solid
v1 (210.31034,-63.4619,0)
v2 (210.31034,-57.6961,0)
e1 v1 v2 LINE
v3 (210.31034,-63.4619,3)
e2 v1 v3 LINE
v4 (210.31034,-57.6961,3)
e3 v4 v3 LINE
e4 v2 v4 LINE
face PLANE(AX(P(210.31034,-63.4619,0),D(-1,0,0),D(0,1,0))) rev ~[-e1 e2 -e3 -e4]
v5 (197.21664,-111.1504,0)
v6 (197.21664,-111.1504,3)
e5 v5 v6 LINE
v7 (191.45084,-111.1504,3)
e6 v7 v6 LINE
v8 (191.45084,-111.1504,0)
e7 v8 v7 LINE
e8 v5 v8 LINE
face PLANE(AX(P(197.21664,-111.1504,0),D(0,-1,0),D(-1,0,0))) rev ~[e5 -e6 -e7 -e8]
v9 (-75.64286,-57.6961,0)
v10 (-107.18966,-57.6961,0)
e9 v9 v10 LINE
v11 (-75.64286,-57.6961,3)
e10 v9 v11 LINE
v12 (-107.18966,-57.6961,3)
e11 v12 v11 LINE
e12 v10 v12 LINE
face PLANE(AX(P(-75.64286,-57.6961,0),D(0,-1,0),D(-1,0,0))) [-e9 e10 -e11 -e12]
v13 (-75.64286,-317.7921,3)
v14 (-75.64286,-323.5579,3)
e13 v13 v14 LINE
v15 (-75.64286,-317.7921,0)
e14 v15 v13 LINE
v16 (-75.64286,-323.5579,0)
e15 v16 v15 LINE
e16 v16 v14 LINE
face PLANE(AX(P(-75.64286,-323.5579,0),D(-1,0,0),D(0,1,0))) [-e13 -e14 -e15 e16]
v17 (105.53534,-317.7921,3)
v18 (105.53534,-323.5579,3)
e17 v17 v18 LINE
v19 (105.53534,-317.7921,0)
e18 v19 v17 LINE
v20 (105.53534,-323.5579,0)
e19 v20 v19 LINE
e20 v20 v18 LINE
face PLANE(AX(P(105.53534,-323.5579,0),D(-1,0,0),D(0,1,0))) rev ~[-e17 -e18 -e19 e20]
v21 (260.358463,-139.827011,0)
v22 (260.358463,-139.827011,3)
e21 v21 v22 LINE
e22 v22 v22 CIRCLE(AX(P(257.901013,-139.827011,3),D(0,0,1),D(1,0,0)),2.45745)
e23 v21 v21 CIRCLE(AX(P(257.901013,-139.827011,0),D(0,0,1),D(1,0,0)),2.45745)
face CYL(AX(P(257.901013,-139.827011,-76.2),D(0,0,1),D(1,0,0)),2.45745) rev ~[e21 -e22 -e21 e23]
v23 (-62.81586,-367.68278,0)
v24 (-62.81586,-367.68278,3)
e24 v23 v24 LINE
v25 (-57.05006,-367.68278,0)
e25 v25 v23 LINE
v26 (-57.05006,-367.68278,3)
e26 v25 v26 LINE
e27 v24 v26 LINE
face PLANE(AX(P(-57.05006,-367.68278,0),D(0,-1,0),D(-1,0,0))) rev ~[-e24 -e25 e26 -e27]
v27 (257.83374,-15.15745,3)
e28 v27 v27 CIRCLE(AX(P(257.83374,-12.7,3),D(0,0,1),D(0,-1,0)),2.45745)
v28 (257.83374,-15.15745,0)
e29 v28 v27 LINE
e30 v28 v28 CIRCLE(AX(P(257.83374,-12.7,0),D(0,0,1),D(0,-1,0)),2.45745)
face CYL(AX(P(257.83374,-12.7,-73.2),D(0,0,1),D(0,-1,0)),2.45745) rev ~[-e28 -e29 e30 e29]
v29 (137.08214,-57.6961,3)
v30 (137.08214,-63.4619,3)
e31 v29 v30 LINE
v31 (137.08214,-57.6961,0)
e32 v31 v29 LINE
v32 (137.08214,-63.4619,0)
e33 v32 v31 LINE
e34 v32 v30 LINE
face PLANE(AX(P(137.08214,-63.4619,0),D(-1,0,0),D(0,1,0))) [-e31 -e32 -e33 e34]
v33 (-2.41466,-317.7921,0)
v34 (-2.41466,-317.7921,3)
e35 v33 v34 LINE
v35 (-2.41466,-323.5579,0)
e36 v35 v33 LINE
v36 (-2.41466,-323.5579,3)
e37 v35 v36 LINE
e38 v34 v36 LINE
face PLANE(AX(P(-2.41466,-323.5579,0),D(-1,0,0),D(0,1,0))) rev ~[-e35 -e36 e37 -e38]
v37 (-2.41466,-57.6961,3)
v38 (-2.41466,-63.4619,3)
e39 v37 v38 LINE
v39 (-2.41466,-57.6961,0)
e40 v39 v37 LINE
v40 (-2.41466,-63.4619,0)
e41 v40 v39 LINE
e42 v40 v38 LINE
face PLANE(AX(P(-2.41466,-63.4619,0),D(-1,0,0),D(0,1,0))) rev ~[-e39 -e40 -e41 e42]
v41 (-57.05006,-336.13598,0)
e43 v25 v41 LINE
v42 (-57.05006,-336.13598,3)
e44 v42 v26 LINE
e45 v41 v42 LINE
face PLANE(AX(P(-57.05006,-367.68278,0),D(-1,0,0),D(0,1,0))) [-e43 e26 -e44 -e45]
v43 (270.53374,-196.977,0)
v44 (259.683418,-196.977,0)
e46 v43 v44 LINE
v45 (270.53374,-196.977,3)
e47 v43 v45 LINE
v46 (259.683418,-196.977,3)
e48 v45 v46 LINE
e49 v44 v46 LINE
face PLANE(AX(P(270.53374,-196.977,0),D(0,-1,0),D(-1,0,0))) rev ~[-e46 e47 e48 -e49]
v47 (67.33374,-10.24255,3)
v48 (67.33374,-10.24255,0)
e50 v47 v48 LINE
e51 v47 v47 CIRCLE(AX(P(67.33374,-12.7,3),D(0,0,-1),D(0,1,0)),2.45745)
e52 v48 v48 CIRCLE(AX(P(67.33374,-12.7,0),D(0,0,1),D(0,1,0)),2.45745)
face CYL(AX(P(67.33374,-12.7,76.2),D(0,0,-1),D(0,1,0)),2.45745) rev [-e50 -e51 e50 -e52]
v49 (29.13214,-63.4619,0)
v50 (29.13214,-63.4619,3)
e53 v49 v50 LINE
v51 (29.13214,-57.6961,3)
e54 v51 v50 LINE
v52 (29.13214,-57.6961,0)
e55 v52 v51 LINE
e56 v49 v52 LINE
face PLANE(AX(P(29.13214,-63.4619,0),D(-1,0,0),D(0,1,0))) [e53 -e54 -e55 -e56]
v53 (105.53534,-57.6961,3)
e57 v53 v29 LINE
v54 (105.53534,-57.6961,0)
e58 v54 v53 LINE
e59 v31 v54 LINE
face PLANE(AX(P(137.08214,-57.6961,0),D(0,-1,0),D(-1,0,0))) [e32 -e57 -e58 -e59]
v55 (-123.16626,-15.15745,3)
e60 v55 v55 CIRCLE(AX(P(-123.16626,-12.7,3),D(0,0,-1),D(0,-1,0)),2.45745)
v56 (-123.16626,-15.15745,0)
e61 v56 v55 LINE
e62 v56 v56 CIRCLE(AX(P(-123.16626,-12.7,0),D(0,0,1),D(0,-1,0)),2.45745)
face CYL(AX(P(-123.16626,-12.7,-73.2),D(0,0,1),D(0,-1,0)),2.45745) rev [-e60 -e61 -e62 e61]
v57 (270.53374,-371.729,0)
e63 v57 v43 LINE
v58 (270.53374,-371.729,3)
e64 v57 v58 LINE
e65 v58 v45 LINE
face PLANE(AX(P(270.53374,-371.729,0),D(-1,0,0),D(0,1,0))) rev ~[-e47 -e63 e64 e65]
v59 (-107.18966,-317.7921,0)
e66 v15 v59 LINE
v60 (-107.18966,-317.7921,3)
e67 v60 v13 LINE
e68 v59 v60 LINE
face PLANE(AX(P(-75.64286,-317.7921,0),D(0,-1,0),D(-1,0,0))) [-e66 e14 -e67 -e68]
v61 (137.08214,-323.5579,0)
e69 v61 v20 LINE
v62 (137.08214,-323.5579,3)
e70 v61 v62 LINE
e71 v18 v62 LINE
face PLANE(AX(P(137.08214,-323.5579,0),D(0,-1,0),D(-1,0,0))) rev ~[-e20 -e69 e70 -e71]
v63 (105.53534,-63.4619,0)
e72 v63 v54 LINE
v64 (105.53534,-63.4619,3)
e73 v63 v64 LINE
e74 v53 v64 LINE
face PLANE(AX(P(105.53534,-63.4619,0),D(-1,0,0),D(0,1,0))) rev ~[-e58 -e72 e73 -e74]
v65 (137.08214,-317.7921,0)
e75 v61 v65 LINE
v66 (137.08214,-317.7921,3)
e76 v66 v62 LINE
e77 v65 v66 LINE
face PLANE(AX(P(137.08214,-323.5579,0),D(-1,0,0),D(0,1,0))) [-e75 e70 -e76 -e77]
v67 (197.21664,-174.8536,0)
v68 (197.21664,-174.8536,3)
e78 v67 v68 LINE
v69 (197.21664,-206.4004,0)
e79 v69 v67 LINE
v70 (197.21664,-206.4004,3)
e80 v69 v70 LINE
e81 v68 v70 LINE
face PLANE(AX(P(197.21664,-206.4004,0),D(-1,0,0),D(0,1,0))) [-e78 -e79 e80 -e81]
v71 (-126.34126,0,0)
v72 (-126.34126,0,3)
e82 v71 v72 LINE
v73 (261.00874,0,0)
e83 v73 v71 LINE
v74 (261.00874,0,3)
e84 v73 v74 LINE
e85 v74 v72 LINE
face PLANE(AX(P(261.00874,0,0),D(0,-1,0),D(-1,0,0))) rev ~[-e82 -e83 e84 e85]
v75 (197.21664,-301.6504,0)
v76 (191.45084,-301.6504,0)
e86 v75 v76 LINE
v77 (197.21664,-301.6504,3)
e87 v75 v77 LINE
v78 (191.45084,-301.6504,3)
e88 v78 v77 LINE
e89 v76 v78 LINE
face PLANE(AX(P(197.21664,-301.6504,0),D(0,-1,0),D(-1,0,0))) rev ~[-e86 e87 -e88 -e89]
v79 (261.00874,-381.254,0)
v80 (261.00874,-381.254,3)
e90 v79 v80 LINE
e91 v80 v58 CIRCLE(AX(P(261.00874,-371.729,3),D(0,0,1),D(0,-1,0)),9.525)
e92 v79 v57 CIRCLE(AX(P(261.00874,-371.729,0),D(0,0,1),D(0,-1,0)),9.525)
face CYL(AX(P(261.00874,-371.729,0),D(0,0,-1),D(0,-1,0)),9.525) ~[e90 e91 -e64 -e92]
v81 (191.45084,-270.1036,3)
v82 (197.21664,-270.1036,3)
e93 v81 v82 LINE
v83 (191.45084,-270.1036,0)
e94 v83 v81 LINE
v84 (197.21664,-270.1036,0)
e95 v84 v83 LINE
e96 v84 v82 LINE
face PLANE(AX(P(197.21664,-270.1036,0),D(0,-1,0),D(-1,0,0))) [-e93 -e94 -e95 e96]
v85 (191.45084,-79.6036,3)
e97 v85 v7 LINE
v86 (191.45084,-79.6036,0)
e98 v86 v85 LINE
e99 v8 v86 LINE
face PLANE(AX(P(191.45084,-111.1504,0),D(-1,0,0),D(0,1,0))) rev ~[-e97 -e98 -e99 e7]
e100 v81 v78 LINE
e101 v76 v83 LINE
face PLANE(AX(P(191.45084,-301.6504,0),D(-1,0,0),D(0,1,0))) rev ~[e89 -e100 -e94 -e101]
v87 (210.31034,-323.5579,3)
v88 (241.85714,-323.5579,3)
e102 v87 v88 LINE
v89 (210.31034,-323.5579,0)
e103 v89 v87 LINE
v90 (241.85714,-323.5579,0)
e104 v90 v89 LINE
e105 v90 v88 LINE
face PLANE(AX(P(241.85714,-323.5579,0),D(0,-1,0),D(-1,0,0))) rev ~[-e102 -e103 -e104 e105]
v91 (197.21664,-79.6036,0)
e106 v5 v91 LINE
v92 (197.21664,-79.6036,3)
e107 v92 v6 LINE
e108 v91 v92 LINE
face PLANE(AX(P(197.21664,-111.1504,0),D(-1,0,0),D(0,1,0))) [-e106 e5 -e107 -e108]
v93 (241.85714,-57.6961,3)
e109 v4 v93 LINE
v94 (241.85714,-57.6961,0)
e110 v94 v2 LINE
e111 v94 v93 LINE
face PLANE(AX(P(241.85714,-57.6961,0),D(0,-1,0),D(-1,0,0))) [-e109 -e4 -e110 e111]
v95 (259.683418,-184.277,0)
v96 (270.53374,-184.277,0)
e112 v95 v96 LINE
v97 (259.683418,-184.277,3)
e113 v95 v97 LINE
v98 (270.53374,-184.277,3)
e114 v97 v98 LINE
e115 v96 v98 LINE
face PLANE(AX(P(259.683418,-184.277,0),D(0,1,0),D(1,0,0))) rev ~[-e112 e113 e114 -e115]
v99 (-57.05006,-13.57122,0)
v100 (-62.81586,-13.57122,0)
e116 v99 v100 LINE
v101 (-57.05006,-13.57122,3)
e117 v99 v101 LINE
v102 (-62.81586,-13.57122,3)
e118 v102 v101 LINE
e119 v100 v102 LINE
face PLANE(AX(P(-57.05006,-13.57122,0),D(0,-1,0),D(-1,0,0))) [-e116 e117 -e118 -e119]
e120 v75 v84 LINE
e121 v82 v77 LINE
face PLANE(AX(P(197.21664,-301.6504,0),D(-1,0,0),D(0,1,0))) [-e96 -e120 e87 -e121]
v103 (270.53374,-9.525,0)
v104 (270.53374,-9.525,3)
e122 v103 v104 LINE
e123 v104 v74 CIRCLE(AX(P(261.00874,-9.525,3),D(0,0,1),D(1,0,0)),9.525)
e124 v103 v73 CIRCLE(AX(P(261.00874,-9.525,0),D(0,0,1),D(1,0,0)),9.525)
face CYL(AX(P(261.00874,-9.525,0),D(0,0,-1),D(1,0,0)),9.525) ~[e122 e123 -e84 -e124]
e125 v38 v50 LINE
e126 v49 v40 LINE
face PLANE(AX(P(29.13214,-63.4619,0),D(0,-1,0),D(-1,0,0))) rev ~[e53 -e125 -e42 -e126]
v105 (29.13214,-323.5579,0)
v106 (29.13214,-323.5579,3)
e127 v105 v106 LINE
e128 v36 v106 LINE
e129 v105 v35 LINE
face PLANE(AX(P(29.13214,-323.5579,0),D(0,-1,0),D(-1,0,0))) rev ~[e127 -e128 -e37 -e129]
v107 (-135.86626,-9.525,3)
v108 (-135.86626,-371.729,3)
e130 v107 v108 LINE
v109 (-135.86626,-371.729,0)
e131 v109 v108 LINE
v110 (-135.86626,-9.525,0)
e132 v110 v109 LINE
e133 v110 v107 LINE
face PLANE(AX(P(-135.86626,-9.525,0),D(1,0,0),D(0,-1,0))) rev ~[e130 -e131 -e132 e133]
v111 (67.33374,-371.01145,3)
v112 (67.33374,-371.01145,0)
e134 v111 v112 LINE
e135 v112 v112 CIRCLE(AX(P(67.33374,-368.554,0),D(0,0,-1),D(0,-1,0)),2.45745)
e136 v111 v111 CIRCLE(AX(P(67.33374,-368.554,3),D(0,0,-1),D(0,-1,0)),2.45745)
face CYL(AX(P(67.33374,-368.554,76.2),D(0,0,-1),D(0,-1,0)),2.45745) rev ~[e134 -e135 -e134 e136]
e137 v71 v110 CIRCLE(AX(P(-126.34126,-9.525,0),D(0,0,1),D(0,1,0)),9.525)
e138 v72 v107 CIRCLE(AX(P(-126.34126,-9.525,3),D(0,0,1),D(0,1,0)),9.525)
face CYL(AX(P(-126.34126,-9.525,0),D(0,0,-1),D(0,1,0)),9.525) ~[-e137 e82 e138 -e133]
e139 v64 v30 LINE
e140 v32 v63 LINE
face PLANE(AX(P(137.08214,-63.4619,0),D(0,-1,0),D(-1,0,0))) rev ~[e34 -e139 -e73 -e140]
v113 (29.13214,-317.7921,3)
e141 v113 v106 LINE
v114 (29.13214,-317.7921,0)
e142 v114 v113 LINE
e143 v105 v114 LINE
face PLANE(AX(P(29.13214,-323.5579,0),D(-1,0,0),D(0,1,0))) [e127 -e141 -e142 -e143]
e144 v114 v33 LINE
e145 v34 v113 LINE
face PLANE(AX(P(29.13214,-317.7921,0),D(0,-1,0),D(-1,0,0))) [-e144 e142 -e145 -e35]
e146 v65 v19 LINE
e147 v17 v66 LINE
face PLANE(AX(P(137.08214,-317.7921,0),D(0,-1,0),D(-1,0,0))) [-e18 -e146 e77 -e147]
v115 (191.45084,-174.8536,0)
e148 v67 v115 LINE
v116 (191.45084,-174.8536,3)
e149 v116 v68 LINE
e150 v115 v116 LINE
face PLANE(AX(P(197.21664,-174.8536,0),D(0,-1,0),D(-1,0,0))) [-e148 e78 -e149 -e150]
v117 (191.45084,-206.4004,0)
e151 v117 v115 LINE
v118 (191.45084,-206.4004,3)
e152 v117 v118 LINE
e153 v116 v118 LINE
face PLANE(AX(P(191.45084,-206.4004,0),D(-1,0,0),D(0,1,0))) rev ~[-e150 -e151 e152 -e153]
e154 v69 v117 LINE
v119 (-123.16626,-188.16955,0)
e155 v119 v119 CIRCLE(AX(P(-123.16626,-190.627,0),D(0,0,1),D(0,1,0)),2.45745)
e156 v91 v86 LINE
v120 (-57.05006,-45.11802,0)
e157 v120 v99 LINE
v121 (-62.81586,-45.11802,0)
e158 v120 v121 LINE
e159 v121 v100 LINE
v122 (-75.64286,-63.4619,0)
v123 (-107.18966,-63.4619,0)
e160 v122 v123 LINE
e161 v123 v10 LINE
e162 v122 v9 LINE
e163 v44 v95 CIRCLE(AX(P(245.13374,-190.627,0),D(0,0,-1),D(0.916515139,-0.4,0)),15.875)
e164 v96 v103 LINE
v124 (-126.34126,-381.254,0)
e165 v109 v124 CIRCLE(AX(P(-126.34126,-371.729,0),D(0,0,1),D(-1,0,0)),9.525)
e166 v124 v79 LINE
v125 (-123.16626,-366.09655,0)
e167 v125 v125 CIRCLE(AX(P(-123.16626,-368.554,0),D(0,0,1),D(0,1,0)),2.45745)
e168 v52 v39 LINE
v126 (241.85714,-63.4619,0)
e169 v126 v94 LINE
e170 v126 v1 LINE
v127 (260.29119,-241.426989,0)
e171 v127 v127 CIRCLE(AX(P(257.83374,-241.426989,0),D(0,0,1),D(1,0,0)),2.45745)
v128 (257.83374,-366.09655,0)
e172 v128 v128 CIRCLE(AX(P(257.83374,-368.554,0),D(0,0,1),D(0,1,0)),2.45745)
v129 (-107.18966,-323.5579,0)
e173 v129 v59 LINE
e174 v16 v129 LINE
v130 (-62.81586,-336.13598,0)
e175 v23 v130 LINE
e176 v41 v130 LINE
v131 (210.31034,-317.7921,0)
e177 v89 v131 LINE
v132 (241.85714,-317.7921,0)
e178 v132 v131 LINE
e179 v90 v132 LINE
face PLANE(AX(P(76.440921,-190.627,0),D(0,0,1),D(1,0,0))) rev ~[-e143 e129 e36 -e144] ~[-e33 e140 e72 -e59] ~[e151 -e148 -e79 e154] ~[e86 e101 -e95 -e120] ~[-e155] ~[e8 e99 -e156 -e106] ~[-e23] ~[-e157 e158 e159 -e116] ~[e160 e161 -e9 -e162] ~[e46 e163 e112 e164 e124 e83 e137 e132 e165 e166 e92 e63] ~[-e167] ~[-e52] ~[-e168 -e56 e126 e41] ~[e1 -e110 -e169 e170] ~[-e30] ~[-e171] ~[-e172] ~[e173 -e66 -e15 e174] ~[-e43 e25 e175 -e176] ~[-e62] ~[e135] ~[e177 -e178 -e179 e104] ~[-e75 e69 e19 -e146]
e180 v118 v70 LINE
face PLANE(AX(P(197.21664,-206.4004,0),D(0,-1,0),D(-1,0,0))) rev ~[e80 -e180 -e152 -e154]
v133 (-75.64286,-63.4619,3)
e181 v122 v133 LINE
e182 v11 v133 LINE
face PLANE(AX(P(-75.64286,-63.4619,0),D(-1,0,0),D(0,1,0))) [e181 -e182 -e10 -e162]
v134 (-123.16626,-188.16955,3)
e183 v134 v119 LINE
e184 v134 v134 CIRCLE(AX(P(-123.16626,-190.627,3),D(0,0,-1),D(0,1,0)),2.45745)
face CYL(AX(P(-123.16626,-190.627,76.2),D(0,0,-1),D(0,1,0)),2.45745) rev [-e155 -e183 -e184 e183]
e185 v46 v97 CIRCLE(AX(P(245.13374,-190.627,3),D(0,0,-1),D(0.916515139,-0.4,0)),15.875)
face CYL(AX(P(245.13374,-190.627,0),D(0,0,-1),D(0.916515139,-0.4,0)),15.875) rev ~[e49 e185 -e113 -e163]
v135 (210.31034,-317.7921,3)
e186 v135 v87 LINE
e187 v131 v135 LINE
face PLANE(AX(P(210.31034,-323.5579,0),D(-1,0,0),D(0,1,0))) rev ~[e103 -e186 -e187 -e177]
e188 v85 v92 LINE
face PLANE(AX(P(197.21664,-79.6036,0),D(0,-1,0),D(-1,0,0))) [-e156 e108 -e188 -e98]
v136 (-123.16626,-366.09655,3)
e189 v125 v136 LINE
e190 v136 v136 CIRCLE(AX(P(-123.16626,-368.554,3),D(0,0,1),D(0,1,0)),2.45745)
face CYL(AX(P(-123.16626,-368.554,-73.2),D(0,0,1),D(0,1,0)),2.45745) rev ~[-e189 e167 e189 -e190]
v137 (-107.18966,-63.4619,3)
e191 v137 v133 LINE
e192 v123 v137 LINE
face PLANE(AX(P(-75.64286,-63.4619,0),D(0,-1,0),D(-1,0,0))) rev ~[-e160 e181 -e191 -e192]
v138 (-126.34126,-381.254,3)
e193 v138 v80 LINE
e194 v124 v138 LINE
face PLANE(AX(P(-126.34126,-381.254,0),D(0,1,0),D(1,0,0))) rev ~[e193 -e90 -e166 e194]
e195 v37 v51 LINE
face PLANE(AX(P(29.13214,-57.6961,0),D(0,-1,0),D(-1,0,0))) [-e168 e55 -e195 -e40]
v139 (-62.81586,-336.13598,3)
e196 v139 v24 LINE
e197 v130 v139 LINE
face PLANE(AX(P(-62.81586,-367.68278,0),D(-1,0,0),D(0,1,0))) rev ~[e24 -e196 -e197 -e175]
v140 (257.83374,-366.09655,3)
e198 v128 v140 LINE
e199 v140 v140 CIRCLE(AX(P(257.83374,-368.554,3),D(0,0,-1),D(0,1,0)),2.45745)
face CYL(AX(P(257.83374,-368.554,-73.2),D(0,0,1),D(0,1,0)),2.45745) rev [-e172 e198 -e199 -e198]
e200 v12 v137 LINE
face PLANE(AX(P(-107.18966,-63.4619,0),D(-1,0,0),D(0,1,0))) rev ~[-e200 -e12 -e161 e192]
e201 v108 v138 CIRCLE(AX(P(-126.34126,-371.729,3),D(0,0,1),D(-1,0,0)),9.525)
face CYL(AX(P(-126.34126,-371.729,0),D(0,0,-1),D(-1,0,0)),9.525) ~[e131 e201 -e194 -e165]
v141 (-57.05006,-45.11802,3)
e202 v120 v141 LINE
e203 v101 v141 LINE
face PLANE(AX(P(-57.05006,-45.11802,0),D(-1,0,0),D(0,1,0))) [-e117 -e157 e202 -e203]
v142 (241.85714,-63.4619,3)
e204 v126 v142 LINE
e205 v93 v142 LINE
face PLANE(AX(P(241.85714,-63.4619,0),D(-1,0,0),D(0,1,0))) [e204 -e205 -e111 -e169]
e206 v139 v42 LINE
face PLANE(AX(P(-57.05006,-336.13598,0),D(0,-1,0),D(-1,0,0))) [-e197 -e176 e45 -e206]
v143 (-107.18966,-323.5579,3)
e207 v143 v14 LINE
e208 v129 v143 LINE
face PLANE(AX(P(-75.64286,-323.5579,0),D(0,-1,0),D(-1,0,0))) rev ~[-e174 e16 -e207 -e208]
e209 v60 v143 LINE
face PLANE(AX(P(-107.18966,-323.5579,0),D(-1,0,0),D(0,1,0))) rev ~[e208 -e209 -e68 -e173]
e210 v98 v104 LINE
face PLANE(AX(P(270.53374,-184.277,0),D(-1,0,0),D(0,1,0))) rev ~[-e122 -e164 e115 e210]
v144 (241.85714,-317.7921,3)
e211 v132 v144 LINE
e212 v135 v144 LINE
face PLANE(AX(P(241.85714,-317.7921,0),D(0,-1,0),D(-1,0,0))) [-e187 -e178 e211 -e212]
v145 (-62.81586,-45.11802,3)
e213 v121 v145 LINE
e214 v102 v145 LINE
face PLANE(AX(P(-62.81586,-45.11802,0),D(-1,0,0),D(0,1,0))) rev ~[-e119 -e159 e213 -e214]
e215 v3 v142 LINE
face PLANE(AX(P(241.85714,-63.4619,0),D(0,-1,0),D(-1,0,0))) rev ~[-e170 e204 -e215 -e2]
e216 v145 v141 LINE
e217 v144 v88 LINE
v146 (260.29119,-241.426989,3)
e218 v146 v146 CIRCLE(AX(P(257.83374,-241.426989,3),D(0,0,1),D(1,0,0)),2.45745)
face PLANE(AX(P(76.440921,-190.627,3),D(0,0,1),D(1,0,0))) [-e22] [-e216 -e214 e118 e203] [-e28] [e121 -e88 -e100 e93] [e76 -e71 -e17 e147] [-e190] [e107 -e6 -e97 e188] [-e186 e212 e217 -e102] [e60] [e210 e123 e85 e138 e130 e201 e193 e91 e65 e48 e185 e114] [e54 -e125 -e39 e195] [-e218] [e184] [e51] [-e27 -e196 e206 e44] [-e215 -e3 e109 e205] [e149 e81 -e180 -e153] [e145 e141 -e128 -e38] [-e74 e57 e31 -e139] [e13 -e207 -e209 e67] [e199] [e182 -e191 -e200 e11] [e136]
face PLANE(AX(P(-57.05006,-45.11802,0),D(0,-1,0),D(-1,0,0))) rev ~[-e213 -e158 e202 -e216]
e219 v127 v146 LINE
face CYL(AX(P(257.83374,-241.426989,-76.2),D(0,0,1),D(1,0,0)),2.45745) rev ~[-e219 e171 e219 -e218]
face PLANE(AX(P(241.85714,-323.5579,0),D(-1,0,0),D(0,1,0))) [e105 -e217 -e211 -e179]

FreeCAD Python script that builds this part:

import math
import FreeCAD as App
import Part
import Sketcher

V = App.Vector
Q = App.Units.Quantity

doc = App.newDocument("Part")
params = doc.addObject("Spreadsheet::Sheet", "Params")
for row, (alias, value) in enumerate([
    ("sketch1_radius", "0.375 in"),
    ("sketch1_radius2", "0.625 in"),
    ("sketch1_width", "15.25 in"),
    ("sketch1_height", "6.88 in"),
    ("sketch1_height2", "14.26 in"),
    ("pad1_length", "3 mm"),
    ("sketch2_height", "3 in"),
    ("groove_angle", "360 deg"),
    ("sketch3_height", "3 in"),
    ("groove2_angle", "360 deg"),
    ("linearpattern_pitch", "260.668884 mm"),
    ("sketch4_height", "3 in"),
    ("groove3_angle", "360 deg"),
    ("sketch5_height", "3 in"),
    ("groove4_angle", "360 deg"),
    ("hole_diameter", "0.1935 in"),
    ("hole_depth", "3 in"),
    ("sketch7_width", "1.242 in"),
    ("sketch7_width2", "0.227 in"),
], start=1):
    params.set(f"A{row}", alias)
    params.set(f"B{row}", "=" + value)
    params.setAlias(f"B{row}", alias)

body = doc.addObject("PartDesign::Body", "Body")

# Sketch on XY plane
sketch1 = body.newObject("Sketcher::SketchObject", "Sketch")
sketch1.AttachmentSupport = (doc.getObject("XY_Plane"), [""])
sketch1.MapMode = "FlatFace"
sketch1.addGeometry([
    Part.ArcOfCircle(Part.Circle(V(-126, -372, 0), V(0, 0, 1), 10), math.radians(180), math.radians(270)),  # 0
    Part.LineSegment(V(-126, -381, 0), V(261, -381, 0)),  # 1
    Part.ArcOfCircle(Part.Circle(V(261, -372, 0), V(0, 0, 1), 10), math.radians(-90), math.radians(0)),  # 2
    Part.LineSegment(V(271, -372, 0), V(271, -197, 0)),  # 3
    Part.LineSegment(V(271, -197, 0), V(260, -197, 0)),  # 4
    Part.ArcOfCircle(Part.Circle(V(245, -191, 0), V(0, 0, 1), 16), math.radians(24), math.radians(336)),  # 5
    Part.LineSegment(V(260, -184, 0), V(271, -184, 0)),  # 6
    Part.LineSegment(V(271, -184, 0), V(271, -10, 0)),  # 7
    Part.ArcOfCircle(Part.Circle(V(261, -10, 0), V(0, 0, 1), 10), math.radians(0), math.radians(90)),  # 8
    Part.LineSegment(V(261, 0, 0), V(-126, 0, 0)),  # 9
    Part.ArcOfCircle(Part.Circle(V(-126, -10, 0), V(0, 0, 1), 10), math.radians(90), math.radians(180)),  # 10
    Part.LineSegment(V(-136, -10, 0), V(-136, -372, 0)),  # 11
], False)
sketch1.addConstraint([
    Sketcher.Constraint("Tangent", 0, 2, 1, 1),
    Sketcher.Constraint("Tangent", 1, 2, 2, 1),
    Sketcher.Constraint("Tangent", 2, 2, 3, 1),
    Sketcher.Constraint("Coincident", 3, 2, 4, 1),
    Sketcher.Constraint("Coincident", 4, 2, 5, 2),
    Sketcher.Constraint("Coincident", 5, 1, 6, 1),
    Sketcher.Constraint("Coincident", 6, 2, 7, 1),
    Sketcher.Constraint("Tangent", 7, 2, 8, 1),
    Sketcher.Constraint("Tangent", 8, 2, 9, 1),
    Sketcher.Constraint("Tangent", 9, 2, 10, 1),
    Sketcher.Constraint("Tangent", 10, 2, 11, 1),
    Sketcher.Constraint("Tangent", 11, 2, 0, 1),
    Sketcher.Constraint("Horizontal", 1),
    Sketcher.Constraint("Vertical", 3),
    Sketcher.Constraint("Horizontal", 4),
    Sketcher.Constraint("Horizontal", 6),
    Sketcher.Constraint("Vertical", 7),
    Sketcher.Constraint("Horizontal", 9),
    Sketcher.Constraint("Vertical", 11),
    Sketcher.Constraint("Equal", 0, 2),
    Sketcher.Constraint("Equal", 2, 8),
    Sketcher.Constraint("Equal", 8, 10),
    Sketcher.Constraint("PointOnObject", 8, 2, -1),
    Sketcher.Constraint("Vertical", 2, 3, 8, 3),
    Sketcher.Constraint("Vertical", 4, 2, 5, 1),
    Sketcher.Constraint("Equal", 3, 7),
    Sketcher.Constraint("Radius", 0, Q("0.375 in")),
    Sketcher.Constraint("Radius", 5, Q("0.625 in")),
    Sketcher.Constraint("DistanceX", 5, 3, 2, 2, Q("1 in")),
    Sketcher.Constraint("DistanceX", 1, 1, 1, 2, Q("15.25 in")),
    Sketcher.Constraint("DistanceY", 3, 1, 3, 2, Q("6.88 in")),
    Sketcher.Constraint("DistanceY", 11, 2, 11, 1, Q("14.26 in")),
    Sketcher.Constraint("DistanceX", 0, 3, -1, 1, Q("126.34126 mm")),
])
sketch1.setExpression("Constraints[26]", "Params.sketch1_radius")
sketch1.setExpression("Constraints[27]", "Params.sketch1_radius2")
sketch1.setExpression("Constraints[29]", "Params.sketch1_width")
sketch1.setExpression("Constraints[30]", "Params.sketch1_height")
sketch1.setExpression("Constraints[31]", "Params.sketch1_height2")
pad1 = body.newObject("PartDesign::Pad", "Pad")
pad1.Profile = sketch1
pad1.setExpression("Length", "Params.pad1_length")

# Sketch on YZ plane
sketch2 = body.newObject("Sketcher::SketchObject", "Sketch001")
sketch2.AttachmentSupport = (doc.getObject("YZ_Plane"), [""])
sketch2.MapMode = "FlatFace"
sketch2.AttachmentOffset = App.Placement(V(0, 0, -123.16626), App.Rotation())
sketch2.addGeometry([
    Part.LineSegment(V(-12.7, -74.7, 0), V(-12.7, 3, 0)),
    Part.LineSegment(V(-12.7, 3, 0), V(-15.2, 3, 0)),
    Part.LineSegment(V(-15.2, 3, 0), V(-15.2, -73.2, 0)),
    Part.LineSegment(V(-15.2, -73.2, 0), V(-12.7, -74.7, 0)),
], False)
sketch2.addGeometry(Part.LineSegment(V(-12.7, 3, 0), V(-12.7, -74.7, 0)), True)  # axis
sketch2.addConstraint([
    Sketcher.Constraint("Coincident", 0, 2, 1, 1),
    Sketcher.Constraint("Coincident", 1, 2, 2, 1),
    Sketcher.Constraint("Coincident", 2, 2, 3, 1),
    Sketcher.Constraint("Coincident", 3, 2, 0, 1),
    Sketcher.Constraint("Vertical", 0),
    Sketcher.Constraint("Horizontal", 1),
    Sketcher.Constraint("Vertical", 2),
    Sketcher.Constraint("Vertical", 4),
    Sketcher.Constraint("Coincident", 4, 1, 0, 2),
    Sketcher.Constraint("Equal", 0, 4),
    Sketcher.Constraint("DistanceY", 2, 2, 2, 1, Q("3 in")),
    Sketcher.Constraint("Angle", 3, Q("-31 deg")),
    Sketcher.Constraint("DistanceX", 0, 2, -1, 1, Q("0.5 in")),
    Sketcher.Constraint("DistanceX", 1, 2, 1, 1, Q("2.45745 mm")),
    Sketcher.Constraint("DistanceY", -1, 1, 0, 2, Q("3 mm")),
])
sketch2.setExpression("Constraints[10]", "Params.sketch2_height")
groove = body.newObject("PartDesign::Groove", "Groove")
groove.Profile = sketch2
groove.ReferenceAxis = (sketch2, ["Axis0"])
groove.setExpression("Angle", "Params.groove_angle")

# Sketch on YZ plane
sketch3 = body.newObject("Sketcher::SketchObject", "Sketch002")
sketch3.AttachmentSupport = (doc.getObject("YZ_Plane"), [""])
sketch3.MapMode = "FlatFace"
sketch3.AttachmentOffset = App.Placement(V(0, 0, 67.33374), App.Rotation())
sketch3.addGeometry([
    Part.LineSegment(V(-12.7, 77.7, 0), V(-12.7, 0, 0)),
    Part.LineSegment(V(-12.7, 0, 0), V(-10.2, 0, 0)),
    Part.LineSegment(V(-10.2, 0, 0), V(-10.2, 76.2, 0)),
    Part.LineSegment(V(-10.2, 76.2, 0), V(-12.7, 77.7, 0)),
], False)
sketch3.addGeometry(Part.LineSegment(V(-12.7, 0, 0), V(-12.7, 77.7, 0)), True)  # axis
sketch3.addConstraint([
    Sketcher.Constraint("Coincident", 0, 2, 1, 1),
    Sketcher.Constraint("Coincident", 1, 2, 2, 1),
    Sketcher.Constraint("Coincident", 2, 2, 3, 1),
    Sketcher.Constraint("Coincident", 3, 2, 0, 1),
    Sketcher.Constraint("Vertical", 0),
    Sketcher.Constraint("Horizontal", 1),
    Sketcher.Constraint("Vertical", 2),
    Sketcher.Constraint("Vertical", 4),
    Sketcher.Constraint("Coincident", 4, 1, 0, 2),
    Sketcher.Constraint("PointOnObject", 0, 2, -1),
    Sketcher.Constraint("Equal", 0, 4),
    Sketcher.Constraint("DistanceY", 2, 1, 2, 2, Q("3 in")),
    Sketcher.Constraint("Angle", 3, Q("149 deg")),
    Sketcher.Constraint("DistanceX", 0, 2, -1, 1, Q("0.5 in")),
    Sketcher.Constraint("DistanceX", 1, 1, 1, 2, Q("2.45745 mm")),
])
sketch3.setExpression("Constraints[11]", "Params.sketch3_height")
groove2 = body.newObject("PartDesign::Groove", "Groove001")
groove2.Profile = sketch3
groove2.ReferenceAxis = (sketch3, ["Axis0"])
groove2.setExpression("Angle", "Params.groove2_angle")
doc.recompute()

datumline = body.newObject("PartDesign::Line", "DatumLine")
datumline.Placement = App.Placement(V(0, 0, 0), App.Rotation(V(0, 0, 1), V(-0.730812196, -0.682578591, 0)))
linearpattern = body.newObject("PartDesign::LinearPattern", "LinearPattern")
linearpattern.Originals = [groove2]
linearpattern.Direction = (datumline, [""])
linearpattern.Mode = "offset"
linearpattern.setExpression("Offset", "Params.linearpattern_pitch")
linearpattern.Occurrences = 2
body.Tip = linearpattern
doc.recompute()

datumplane = body.newObject("PartDesign::Plane", "DatumPlane")
datumplane.AttachmentSupport = (doc.getObject("YZ_Plane"), [""])
datumplane.MapMode = "FlatFace"
datumplane.AttachmentOffset = App.Placement(V(0, 0, 67.33374), App.Rotation())
mirrored = body.newObject("PartDesign::Mirrored", "Mirrored")
mirrored.Originals = [groove]
mirrored.MirrorPlane = (datumplane, [""])
body.Tip = mirrored
doc.recompute()

datumplane2 = body.newObject("PartDesign::Plane", "DatumPlane001")
datumplane2.AttachmentSupport = (doc.getObject("XZ_Plane"), [""])
datumplane2.MapMode = "FlatFace"
datumplane2.AttachmentOffset = App.Placement(V(0, 0, 7.505 * 25.4), App.Rotation())
mirrored2 = body.newObject("PartDesign::Mirrored", "Mirrored001")
mirrored2.Originals = [groove, groove2]
mirrored2.MirrorPlane = (datumplane2, [""])
body.Tip = mirrored2

# Sketch on YZ plane
sketch4 = body.newObject("Sketcher::SketchObject", "Sketch003")
sketch4.AttachmentSupport = (doc.getObject("YZ_Plane"), [""])
sketch4.MapMode = "FlatFace"
sketch4.AttachmentOffset = App.Placement(V(0, 0, 257.83374), App.Rotation())
sketch4.addGeometry([
    Part.LineSegment(V(-368.6, -74.7, 0), V(-368.6, 3, 0)),
    Part.LineSegment(V(-368.6, 3, 0), V(-366.1, 3, 0)),
    Part.LineSegment(V(-366.1, 3, 0), V(-366.1, -73.2, 0)),
    Part.LineSegment(V(-366.1, -73.2, 0), V(-368.6, -74.7, 0)),
], False)
sketch4.addGeometry(Part.LineSegment(V(-368.6, 3, 0), V(-368.6, -74.7, 0)), True)  # axis
sketch4.addConstraint([
    Sketcher.Constraint("Coincident", 0, 2, 1, 1),
    Sketcher.Constraint("Coincident", 1, 2, 2, 1),
    Sketcher.Constraint("Coincident", 2, 2, 3, 1),
    Sketcher.Constraint("Coincident", 3, 2, 0, 1),
    Sketcher.Constraint("Vertical", 0),
    Sketcher.Constraint("Horizontal", 1),
    Sketcher.Constraint("Vertical", 2),
    Sketcher.Constraint("Vertical", 4),
    Sketcher.Constraint("Coincident", 4, 1, 0, 2),
    Sketcher.Constraint("Equal", 0, 4),
    Sketcher.Constraint("DistanceY", 2, 2, 2, 1, Q("3 in")),
    Sketcher.Constraint("Angle", 3, Q("-149 deg")),
    Sketcher.Constraint("DistanceX", 0, 2, -1, 1, Q("14.51 in")),
    Sketcher.Constraint("DistanceX", 1, 1, 1, 2, Q("2.45745 mm")),
    Sketcher.Constraint("DistanceY", -1, 1, 0, 2, Q("3 mm")),
])
sketch4.setExpression("Constraints[10]", "Params.sketch4_height")
groove3 = body.newObject("PartDesign::Groove", "Groove002")
groove3.Profile = sketch4
groove3.ReferenceAxis = (sketch4, ["Axis0"])
groove3.setExpression("Angle", "Params.groove3_angle")

# Sketch on YZ plane
sketch5 = body.newObject("Sketcher::SketchObject", "Sketch004")
sketch5.AttachmentSupport = (doc.getObject("YZ_Plane"), [""])
sketch5.MapMode = "FlatFace"
sketch5.AttachmentOffset = App.Placement(V(0, 0, -123.16626), App.Rotation())
sketch5.addGeometry([
    Part.LineSegment(V(-190.6, 0, 0), V(-190.6, 77.7, 0)),
    Part.LineSegment(V(-190.6, 77.7, 0), V(-193.1, 76.2, 0)),
    Part.LineSegment(V(-193.1, 76.2, 0), V(-193.1, 0, 0)),
    Part.LineSegment(V(-193.1, 0, 0), V(-190.6, 0, 0)),
], False)
sketch5.addGeometry(Part.LineSegment(V(-190.6, 77.7, 0), V(-190.6, 0, 0)), True)  # axis
sketch5.addConstraint([
    Sketcher.Constraint("Coincident", 0, 2, 1, 1),
    Sketcher.Constraint("Coincident", 1, 2, 2, 1),
    Sketcher.Constraint("Coincident", 2, 2, 3, 1),
    Sketcher.Constraint("Coincident", 3, 2, 0, 1),
    Sketcher.Constraint("Vertical", 0),
    Sketcher.Constraint("Vertical", 2),
    Sketcher.Constraint("Horizontal", 3),
    Sketcher.Constraint("Vertical", 4),
    Sketcher.Constraint("Coincident", 4, 1, 0, 2),
    Sketcher.Constraint("PointOnObject", 2, 2, -1),
    Sketcher.Constraint("PointOnObject", 4, 2, -1),
    Sketcher.Constraint("DistanceY", 2, 2, 2, 1, Q("3 in")),
    Sketcher.Constraint("Angle", 1, Q("-149 deg")),
    Sketcher.Constraint("DistanceX", 0, 2, -1, 1, Q("7.505 in")),
    Sketcher.Constraint("DistanceX", 3, 1, 3, 2, Q("2.45745 mm")),
])
sketch5.setExpression("Constraints[11]", "Params.sketch5_height")
groove4 = body.newObject("PartDesign::Groove", "Groove003")
groove4.Profile = sketch5
groove4.ReferenceAxis = (sketch5, ["Axis0"])
groove4.setExpression("Angle", "Params.groove4_angle")

# Sketch on XY plane
sketch6 = body.newObject("Sketcher::SketchObject", "Sketch005")
sketch6.AttachmentSupport = (doc.getObject("XY_Plane"), [""])
sketch6.MapMode = "FlatFace"
sketch6.addGeometry([
    Part.Circle(V(257.8, -241.4, 0), V(0, 0, 1), 2.5),
    Part.Circle(V(257.9, -139.8, 0), V(0, 0, 1), 2.5),
], False)
sketch6.addConstraint([
    Sketcher.Constraint("Equal", 0, 1),
    Sketcher.Constraint("Diameter", 0, Q("0.1935 in")),
    Sketcher.Constraint("DistanceX", -1, 1, 0, 3, Q("257.83374 mm")),
    Sketcher.Constraint("DistanceY", 0, 3, -1, 1, Q("241.426989 mm")),
    Sketcher.Constraint("DistanceY", 1, 3, -1, 1, Q("139.827011 mm")),
    Sketcher.Constraint("DistanceX", -1, 1, 1, 3, Q("257.901013 mm")),
])
doc.recompute()
hole = body.newObject("PartDesign::Hole", "Hole")
hole.Profile = sketch6
hole.ThreadType = "None"
hole.setExpression("Diameter", "Params.hole_diameter")
hole.DepthType = "Dimension"
hole.setExpression("Depth", "Params.hole_depth")
hole.DrillPoint = "Angled"
hole.DrillPointAngle = 118
hole.Reversed = True

# Sketch on XY plane
sketch7 = body.newObject("Sketcher::SketchObject", "Sketch006")
sketch7.AttachmentSupport = (doc.getObject("XY_Plane"), [""])
sketch7.MapMode = "FlatFace"
sketch7.addGeometry([
    Part.LineSegment(V(137, -318, 0), V(137, -324, 0)),  # 0
    Part.LineSegment(V(137, -324, 0), V(106, -324, 0)),  # 1
    Part.LineSegment(V(106, -324, 0), V(106, -318, 0)),  # 2
    Part.LineSegment(V(106, -318, 0), V(137, -318, 0)),  # 3
    Part.LineSegment(V(242, -318, 0), V(242, -324, 0)),  # 4
    Part.LineSegment(V(242, -324, 0), V(210, -324, 0)),  # 5
    Part.LineSegment(V(210, -324, 0), V(210, -318, 0)),  # 6
    Part.LineSegment(V(210, -318, 0), V(242, -318, 0)),  # 7
    Part.LineSegment(V(197, -270, 0), V(197, -302, 0)),  # 8
    Part.LineSegment(V(197, -302, 0), V(191, -302, 0)),  # 9
    Part.LineSegment(V(191, -302, 0), V(191, -270, 0)),  # 10
    Part.LineSegment(V(191, -270, 0), V(197, -270, 0)),  # 11
    Part.LineSegment(V(197, -175, 0), V(197, -206, 0)),  # 12
    Part.LineSegment(V(197, -206, 0), V(191, -206, 0)),  # 13
    Part.LineSegment(V(191, -206, 0), V(191, -175, 0)),  # 14
    Part.LineSegment(V(191, -175, 0), V(197, -175, 0)),  # 15
    Part.LineSegment(V(197, -80, 0), V(197, -111, 0)),  # 16
    Part.LineSegment(V(197, -111, 0), V(191, -111, 0)),  # 17
    Part.LineSegment(V(191, -111, 0), V(191, -80, 0)),  # 18
    Part.LineSegment(V(191, -80, 0), V(197, -80, 0)),  # 19
    Part.LineSegment(V(242, -58, 0), V(242, -63, 0)),  # 20
    Part.LineSegment(V(242, -63, 0), V(210, -63, 0)),  # 21
    Part.LineSegment(V(210, -63, 0), V(210, -58, 0)),  # 22
    Part.LineSegment(V(210, -58, 0), V(242, -58, 0)),  # 23
    Part.LineSegment(V(137, -58, 0), V(137, -63, 0)),  # 24
    Part.LineSegment(V(137, -63, 0), V(106, -63, 0)),  # 25
    Part.LineSegment(V(106, -63, 0), V(106, -58, 0)),  # 26
    Part.LineSegment(V(106, -58, 0), V(137, -58, 0)),  # 27
    Part.LineSegment(V(29, -58, 0), V(29, -63, 0)),  # 28
    Part.LineSegment(V(29, -63, 0), V(-2, -63, 0)),  # 29
    Part.LineSegment(V(-2, -63, 0), V(-2, -58, 0)),  # 30
    Part.LineSegment(V(-2, -58, 0), V(29, -58, 0)),  # 31
    Part.LineSegment(V(-76, -58, 0), V(-76, -63, 0)),  # 32
    Part.LineSegment(V(-76, -63, 0), V(-107, -63, 0)),  # 33
    Part.LineSegment(V(-107, -63, 0), V(-107, -58, 0)),  # 34
    Part.LineSegment(V(-107, -58, 0), V(-76, -58, 0)),  # 35
    Part.LineSegment(V(-57, -336, 0), V(-57, -368, 0)),  # 36
    Part.LineSegment(V(-57, -368, 0), V(-63, -368, 0)),  # 37
    Part.LineSegment(V(-63, -368, 0), V(-63, -336, 0)),  # 38
    Part.LineSegment(V(-63, -336, 0), V(-57, -336, 0)),  # 39
    Part.LineSegment(V(-57, -14, 0), V(-57, -45, 0)),  # 40
    Part.LineSegment(V(-57, -45, 0), V(-63, -45, 0)),  # 41
    Part.LineSegment(V(-63, -45, 0), V(-63, -14, 0)),  # 42
    Part.LineSegment(V(-63, -14, 0), V(-57, -14, 0)),  # 43
    Part.LineSegment(V(-76, -318, 0), V(-76, -324, 0)),  # 44
    Part.LineSegment(V(-76, -324, 0), V(-107, -324, 0)),  # 45
    Part.LineSegment(V(-107, -324, 0), V(-107, -318, 0)),  # 46
    Part.LineSegment(V(-107, -318, 0), V(-76, -318, 0)),  # 47
    Part.LineSegment(V(29, -318, 0), V(29, -324, 0)),  # 48
    Part.LineSegment(V(29, -324, 0), V(-2, -324, 0)),  # 49
    Part.LineSegment(V(-2, -324, 0), V(-2, -318, 0)),  # 50
    Part.LineSegment(V(-2, -318, 0), V(29, -318, 0)),  # 51
], False)
sketch7.addConstraint([
    Sketcher.Constraint("Coincident", 0, 2, 1, 1),
    Sketcher.Constraint("Coincident", 1, 2, 2, 1),
    Sketcher.Constraint("Coincident", 2, 2, 3, 1),
    Sketcher.Constraint("Coincident", 3, 2, 0, 1),
    Sketcher.Constraint("Coincident", 4, 2, 5, 1),
    Sketcher.Constraint("Coincident", 5, 2, 6, 1),
    Sketcher.Constraint("Coincident", 6, 2, 7, 1),
    Sketcher.Constraint("Coincident", 7, 2, 4, 1),
    Sketcher.Constraint("Coincident", 8, 2, 9, 1),
    Sketcher.Constraint("Coincident", 9, 2, 10, 1),
    Sketcher.Constraint("Coincident", 10, 2, 11, 1),
    Sketcher.Constraint("Coincident", 11, 2, 8, 1),
    Sketcher.Constraint("Coincident", 12, 2, 13, 1),
    Sketcher.Constraint("Coincident", 13, 2, 14, 1),
    Sketcher.Constraint("Coincident", 14, 2, 15, 1),
    Sketcher.Constraint("Coincident", 15, 2, 12, 1),
    Sketcher.Constraint("Coincident", 16, 2, 17, 1),
    Sketcher.Constraint("Coincident", 17, 2, 18, 1),
    Sketcher.Constraint("Coincident", 18, 2, 19, 1),
    Sketcher.Constraint("Coincident", 19, 2, 16, 1),
    Sketcher.Constraint("Coincident", 20, 2, 21, 1),
    Sketcher.Constraint("Coincident", 21, 2, 22, 1),
    Sketcher.Constraint("Coincident", 22, 2, 23, 1),
    Sketcher.Constraint("Coincident", 23, 2, 20, 1),
    Sketcher.Constraint("Coincident", 24, 2, 25, 1),
    Sketcher.Constraint("Coincident", 25, 2, 26, 1),
    Sketcher.Constraint("Coincident", 26, 2, 27, 1),
    Sketcher.Constraint("Coincident", 27, 2, 24, 1),
    Sketcher.Constraint("Coincident", 28, 2, 29, 1),
    Sketcher.Constraint("Coincident", 29, 2, 30, 1),
    Sketcher.Constraint("Coincident", 30, 2, 31, 1),
    Sketcher.Constraint("Coincident", 31, 2, 28, 1),
    Sketcher.Constraint("Coincident", 32, 2, 33, 1),
    Sketcher.Constraint("Coincident", 33, 2, 34, 1),
    Sketcher.Constraint("Coincident", 34, 2, 35, 1),
    Sketcher.Constraint("Coincident", 35, 2, 32, 1),
    Sketcher.Constraint("Coincident", 36, 2, 37, 1),
    Sketcher.Constraint("Coincident", 37, 2, 38, 1),
    Sketcher.Constraint("Coincident", 38, 2, 39, 1),
    Sketcher.Constraint("Coincident", 39, 2, 36, 1),
    Sketcher.Constraint("Coincident", 40, 2, 41, 1),
    Sketcher.Constraint("Coincident", 41, 2, 42, 1),
    Sketcher.Constraint("Coincident", 42, 2, 43, 1),
    Sketcher.Constraint("Coincident", 43, 2, 40, 1),
    Sketcher.Constraint("Coincident", 44, 2, 45, 1),
    Sketcher.Constraint("Coincident", 45, 2, 46, 1),
    Sketcher.Constraint("Coincident", 46, 2, 47, 1),
    Sketcher.Constraint("Coincident", 47, 2, 44, 1),
    Sketcher.Constraint("Coincident", 48, 2, 49, 1),
    Sketcher.Constraint("Coincident", 49, 2, 50, 1),
    Sketcher.Constraint("Coincident", 50, 2, 51, 1),
    Sketcher.Constraint("Coincident", 51, 2, 48, 1),
    Sketcher.Constraint("Vertical", 0),
    Sketcher.Constraint("Horizontal", 1),
    Sketcher.Constraint("Vertical", 2),
    Sketcher.Constraint("Horizontal", 3),
    Sketcher.Constraint("Vertical", 4),
    Sketcher.Constraint("Horizontal", 5),
    Sketcher.Constraint("Vertical", 6),
    Sketcher.Constraint("Horizontal", 7),
    Sketcher.Constraint("Vertical", 8),
    Sketcher.Constraint("Horizontal", 9),
    Sketcher.Constraint("Vertical", 10),
    Sketcher.Constraint("Horizontal", 11),
    Sketcher.Constraint("Vertical", 12),
    Sketcher.Constraint("Horizontal", 13),
    Sketcher.Constraint("Vertical", 14),
    Sketcher.Constraint("Horizontal", 15),
    Sketcher.Constraint("Vertical", 16),
    Sketcher.Constraint("Horizontal", 17),
    Sketcher.Constraint("Vertical", 18),
    Sketcher.Constraint("Horizontal", 19),
    Sketcher.Constraint("Vertical", 20),
    Sketcher.Constraint("Horizontal", 21),
    Sketcher.Constraint("Vertical", 22),
    Sketcher.Constraint("Horizontal", 23),
    Sketcher.Constraint("Vertical", 24),
    Sketcher.Constraint("Horizontal", 25),
    Sketcher.Constraint("Vertical", 26),
    Sketcher.Constraint("Horizontal", 27),
    Sketcher.Constraint("Vertical", 28),
    Sketcher.Constraint("Horizontal", 29),
    Sketcher.Constraint("Vertical", 30),
    Sketcher.Constraint("Horizontal", 31),
    Sketcher.Constraint("Vertical", 32),
    Sketcher.Constraint("Horizontal", 33),
    Sketcher.Constraint("Vertical", 34),
    Sketcher.Constraint("Horizontal", 35),
    Sketcher.Constraint("Vertical", 36),
    Sketcher.Constraint("Horizontal", 37),
    Sketcher.Constraint("Vertical", 38),
    Sketcher.Constraint("Horizontal", 39),
    Sketcher.Constraint("Vertical", 40),
    Sketcher.Constraint("Horizontal", 41),
    Sketcher.Constraint("Vertical", 42),
    Sketcher.Constraint("Horizontal", 43),
    Sketcher.Constraint("Vertical", 44),
    Sketcher.Constraint("Horizontal", 45),
    Sketcher.Constraint("Vertical", 46),
    Sketcher.Constraint("Horizontal", 47),
    Sketcher.Constraint("Vertical", 48),
    Sketcher.Constraint("Horizontal", 49),
    Sketcher.Constraint("Vertical", 50),
    Sketcher.Constraint("Horizontal", 51),
    Sketcher.Constraint("Horizontal", 1, 2, 4, 2),
    Sketcher.Constraint("Horizontal", 3, 2, 6, 2),
    Sketcher.Constraint("Horizontal", 21, 2, 24, 2),
    Sketcher.Constraint("Horizontal", 23, 2, 26, 2),
    Sketcher.Constraint("Horizontal", 25, 2, 28, 2),
    Sketcher.Constraint("Horizontal", 27, 2, 30, 2),
    Sketcher.Constraint("Horizontal", 29, 2, 32, 2),
    Sketcher.Constraint("Horizontal", 31, 2, 34, 2),
    Sketcher.Constraint("Horizontal", 5, 2, 44, 2),
    Sketcher.Constraint("Horizontal", 7, 2, 46, 2),
    Sketcher.Constraint("Horizontal", 45, 2, 48, 2),
    Sketcher.Constraint("Horizontal", 47, 2, 50, 2),
    Sketcher.Constraint("Vertical", 11, 2, 12, 2),
    Sketcher.Constraint("Vertical", 10, 2, 13, 2),
    Sketcher.Constraint("Vertical", 15, 2, 16, 2),
    Sketcher.Constraint("Vertical", 14, 2, 17, 2),
    Sketcher.Constraint("Vertical", 7, 2, 20, 2),
    Sketcher.Constraint("Vertical", 6, 2, 21, 2),
    Sketcher.Constraint("Vertical", 3, 2, 24, 2),
    Sketcher.Constraint("Vertical", 2, 2, 25, 2),
    Sketcher.Constraint("Vertical", 39, 2, 40, 2),
    Sketcher.Constraint("Vertical", 38, 2, 41, 2),
    Sketcher.Constraint("Vertical", 35, 2, 44, 2),
    Sketcher.Constraint("Vertical", 34, 2, 45, 2),
    Sketcher.Constraint("Vertical", 31, 2, 48, 2),
    Sketcher.Constraint("Vertical", 30, 2, 49, 2),
    Sketcher.Constraint("Equal", 3, 5),
    Sketcher.Constraint("Equal", 27, 29),
    Sketcher.Constraint("Equal", 31, 33),
    Sketcher.Constraint("Equal", 19, 37),
    Sketcher.Constraint("Equal", 43, 0),
    Sketcher.Constraint("Equal", 51, 8),
    Sketcher.Constraint("Equal", 10, 12),
    Sketcher.Constraint("Equal", 14, 16),
    Sketcher.Constraint("Equal", 6, 20),
    Sketcher.Constraint("Equal", 18, 36),
    Sketcher.Constraint("Equal", 38, 40),
    Sketcher.Constraint("DistanceX", 1, 2, 1, 1, Q("1.242 in")),
    Sketcher.Constraint("DistanceX", 9, 2, 9, 1, Q("0.227 in")),
    Sketcher.Constraint("DistanceY", 8, 2, 12, 2, Q("3.75 in")),
    Sketcher.Constraint("DistanceY", 12, 2, 16, 2, Q("3.75 in")),
    Sketcher.Constraint("DistanceX", 28, 2, 24, 2, Q("4.25 in")),
    Sketcher.Constraint("DistanceX", 37, 2, 0, 2, Q("7.87 in")),
    Sketcher.Constraint("DistanceY", 8, 2, -1, 1, Q("11.876 in")),
    Sketcher.Constraint("DistanceX", 0, 2, 4, 2, Q("4.125 in")),
    Sketcher.Constraint("DistanceX", 32, 2, 29, 2, Q("2.883 in")),
    Sketcher.Constraint("DistanceY", 0, 2, -1, 1, Q("12.7385 in")),
    Sketcher.Constraint("DistanceY", 20, 2, -1, 1, Q("2.4985 in")),
    Sketcher.Constraint("DistanceY", 36, 2, -1, 1, Q("14.4757 in")),
    Sketcher.Constraint("DistanceY", 40, 2, -1, 1, Q("1.7763 in")),
    Sketcher.Constraint("DistanceX", 8, 2, 6, 2, Q("0.5155 in")),
    Sketcher.Constraint("DistanceX", -1, 1, 0, 2, Q("137.08214 mm")),
])
sketch7.setExpression("Constraints[141]", "Params.sketch7_width")
sketch7.setExpression("Constraints[142]", "Params.sketch7_width2")
pocket1 = body.newObject("PartDesign::Pocket", "Pocket")
pocket1.Profile = sketch7
pocket1.Type = "ThroughAll"
pocket1.Reversed = True

doc.recompute()
